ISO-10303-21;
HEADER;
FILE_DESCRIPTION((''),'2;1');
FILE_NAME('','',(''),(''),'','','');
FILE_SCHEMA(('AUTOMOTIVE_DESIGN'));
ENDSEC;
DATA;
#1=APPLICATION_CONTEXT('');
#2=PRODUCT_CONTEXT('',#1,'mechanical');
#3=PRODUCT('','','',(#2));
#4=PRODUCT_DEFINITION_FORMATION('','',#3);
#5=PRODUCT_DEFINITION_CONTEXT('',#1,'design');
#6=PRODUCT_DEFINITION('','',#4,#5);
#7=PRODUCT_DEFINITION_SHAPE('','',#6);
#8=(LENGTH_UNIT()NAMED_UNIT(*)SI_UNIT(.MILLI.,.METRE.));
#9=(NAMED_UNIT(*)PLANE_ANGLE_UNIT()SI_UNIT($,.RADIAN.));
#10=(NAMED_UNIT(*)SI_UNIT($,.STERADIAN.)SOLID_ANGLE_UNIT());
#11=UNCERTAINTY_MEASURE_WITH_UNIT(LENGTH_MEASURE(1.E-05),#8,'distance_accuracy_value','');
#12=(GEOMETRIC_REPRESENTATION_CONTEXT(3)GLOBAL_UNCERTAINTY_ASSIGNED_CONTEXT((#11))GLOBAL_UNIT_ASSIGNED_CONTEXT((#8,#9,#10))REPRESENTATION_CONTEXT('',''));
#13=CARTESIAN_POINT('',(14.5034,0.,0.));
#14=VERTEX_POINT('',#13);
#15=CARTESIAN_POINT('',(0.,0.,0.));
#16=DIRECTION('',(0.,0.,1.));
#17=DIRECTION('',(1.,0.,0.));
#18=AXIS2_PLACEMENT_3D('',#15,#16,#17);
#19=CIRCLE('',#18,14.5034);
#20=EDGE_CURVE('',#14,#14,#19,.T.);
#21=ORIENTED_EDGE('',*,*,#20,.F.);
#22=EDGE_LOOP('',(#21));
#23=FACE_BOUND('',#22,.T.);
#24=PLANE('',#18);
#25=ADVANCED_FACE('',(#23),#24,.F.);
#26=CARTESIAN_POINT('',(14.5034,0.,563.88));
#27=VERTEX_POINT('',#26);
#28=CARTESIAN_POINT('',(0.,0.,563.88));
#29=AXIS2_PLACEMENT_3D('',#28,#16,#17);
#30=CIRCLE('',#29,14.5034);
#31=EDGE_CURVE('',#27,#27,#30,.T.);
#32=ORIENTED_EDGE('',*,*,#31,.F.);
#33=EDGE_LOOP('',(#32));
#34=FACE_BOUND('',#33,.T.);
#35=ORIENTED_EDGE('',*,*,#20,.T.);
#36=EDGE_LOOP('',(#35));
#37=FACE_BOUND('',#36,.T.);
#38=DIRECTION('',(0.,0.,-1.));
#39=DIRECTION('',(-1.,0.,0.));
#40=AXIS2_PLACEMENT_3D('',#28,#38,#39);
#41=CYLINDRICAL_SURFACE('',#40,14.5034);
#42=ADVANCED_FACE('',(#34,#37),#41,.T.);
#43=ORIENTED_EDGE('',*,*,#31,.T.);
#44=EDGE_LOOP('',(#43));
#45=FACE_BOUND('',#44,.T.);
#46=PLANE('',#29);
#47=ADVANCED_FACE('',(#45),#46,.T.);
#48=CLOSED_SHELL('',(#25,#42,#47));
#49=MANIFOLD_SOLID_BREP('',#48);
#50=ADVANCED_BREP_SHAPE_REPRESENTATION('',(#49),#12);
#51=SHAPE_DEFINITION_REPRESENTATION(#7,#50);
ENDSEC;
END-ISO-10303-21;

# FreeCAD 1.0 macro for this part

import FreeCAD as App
import Part
import Sketcher

V = App.Vector
Q = App.Units.Quantity

doc = App.newDocument("Part")
body = doc.addObject("PartDesign::Body", "Body")

sketch1 = doc.addObject("Sketcher::SketchObject", "Sketch")
body.addObject(sketch1)
sketch1.AttachmentSupport = (doc.XY_Plane, [""])
sketch1.MapMode = "FlatFace"
sketch1.addGeometry(Part.Circle(V(0, 0, 0), V(0, 0, 1), 15), False)
sketch1.addConstraint([
    Sketcher.Constraint("Coincident", 0, 3, -1, 1),
    Sketcher.Constraint("Diameter", 0, Q("1.142 in")),
])
pad1 = doc.addObject("PartDesign::Pad", "Pad")
body.addObject(pad1)
pad1.Profile = sketch1
pad1.Length = Q("22.2 in")

doc.recompute()
